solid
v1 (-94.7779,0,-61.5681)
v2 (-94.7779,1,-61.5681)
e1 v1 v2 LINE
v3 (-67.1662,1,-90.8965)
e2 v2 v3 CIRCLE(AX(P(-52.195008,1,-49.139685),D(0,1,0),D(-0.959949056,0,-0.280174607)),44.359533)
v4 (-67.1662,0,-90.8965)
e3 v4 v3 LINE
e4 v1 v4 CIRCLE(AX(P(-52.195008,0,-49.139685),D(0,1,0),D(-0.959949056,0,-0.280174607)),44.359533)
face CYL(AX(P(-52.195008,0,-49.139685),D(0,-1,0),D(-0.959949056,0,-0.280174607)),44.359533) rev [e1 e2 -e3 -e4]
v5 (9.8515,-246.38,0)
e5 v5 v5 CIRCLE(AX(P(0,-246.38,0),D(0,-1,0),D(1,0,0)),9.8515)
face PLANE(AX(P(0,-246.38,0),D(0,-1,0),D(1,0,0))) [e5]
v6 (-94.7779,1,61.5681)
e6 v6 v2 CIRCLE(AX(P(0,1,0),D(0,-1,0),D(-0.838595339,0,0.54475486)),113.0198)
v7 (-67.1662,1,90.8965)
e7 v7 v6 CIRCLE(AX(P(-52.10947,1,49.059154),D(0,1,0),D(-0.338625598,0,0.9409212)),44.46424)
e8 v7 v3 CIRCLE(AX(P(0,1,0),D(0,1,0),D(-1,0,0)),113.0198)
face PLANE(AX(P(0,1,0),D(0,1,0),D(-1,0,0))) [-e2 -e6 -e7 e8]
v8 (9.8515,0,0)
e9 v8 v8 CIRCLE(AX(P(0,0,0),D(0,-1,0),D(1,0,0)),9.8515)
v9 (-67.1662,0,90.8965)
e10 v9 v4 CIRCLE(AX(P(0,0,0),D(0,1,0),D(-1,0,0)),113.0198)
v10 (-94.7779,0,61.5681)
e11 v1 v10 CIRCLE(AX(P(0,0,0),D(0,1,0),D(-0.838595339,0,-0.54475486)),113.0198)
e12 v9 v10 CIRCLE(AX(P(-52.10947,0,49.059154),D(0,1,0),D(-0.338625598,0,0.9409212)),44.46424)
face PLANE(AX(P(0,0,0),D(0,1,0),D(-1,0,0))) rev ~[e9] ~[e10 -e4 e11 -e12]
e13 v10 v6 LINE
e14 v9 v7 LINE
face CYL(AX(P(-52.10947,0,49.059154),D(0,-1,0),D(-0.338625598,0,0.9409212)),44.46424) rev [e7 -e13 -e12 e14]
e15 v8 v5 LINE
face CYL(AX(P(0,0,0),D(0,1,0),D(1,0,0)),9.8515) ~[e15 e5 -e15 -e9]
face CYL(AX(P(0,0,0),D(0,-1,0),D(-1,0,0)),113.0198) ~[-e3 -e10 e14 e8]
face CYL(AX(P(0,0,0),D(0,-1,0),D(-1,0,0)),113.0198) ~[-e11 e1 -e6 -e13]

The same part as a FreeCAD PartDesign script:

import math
import FreeCAD as App
import Part
import Sketcher
from FreeCAD import Vector

doc = App.newDocument("Part")
body = doc.addObject("PartDesign::Body", "Body")

# Sketch on XZ plane
sketch1 = body.newObject("Sketcher::SketchObject", "Sketch")
sketch1.AttachmentSupport = (doc.getObject("XZ_Plane"), [""])
sketch1.MapMode = "FlatFace"
sketch1.addGeometry([
    Part.ArcOfCircle(Part.Circle(Vector(0, 0, 0), Vector(0, 0, 1), 113.0198), math.radians(146.992087), math.radians(213.007913)),
    Part.ArcOfCircle(Part.Circle(Vector(-52.1094, 49.0592, 0), Vector(0, 0, 1), 44.46422), math.radians(163.660723), math.radians(469.793265)),
    Part.ArcOfCircle(Part.Circle(Vector(0, 0, 0), Vector(0, 0, 1), 113.0198), math.radians(-126.461827), math.radians(126.461827)),
    Part.ArcOfCircle(Part.Circle(Vector(-52.195, -49.1397, 0), Vector(0, 0, 1), 44.359537), math.radians(-109.724443), math.radians(196.270605)),
], False)
sketch1.addConstraint([
    Sketcher.Constraint("Coincident", 0, 1, 1, 1),
    Sketcher.Constraint("Coincident", 1, 2, 2, 2),
    Sketcher.Constraint("Coincident", 2, 1, 3, 1),
    Sketcher.Constraint("Coincident", 3, 2, 0, 2),
    Sketcher.Constraint("Coincident", 0, 3, -1, 1),
    Sketcher.Constraint("Coincident", 2, 3, -1, 1),
    Sketcher.Constraint("Equal", 0, 2),
    Sketcher.Constraint("Vertical", 1, 2, 2, 1),
    Sketcher.Constraint("Vertical", 0, 1, 3, 2),
    Sketcher.Constraint("Radius", 0, 113.0198),
    Sketcher.Constraint("Radius", 1, 44.4642),
    Sketcher.Constraint("Radius", 3, 44.3595),
    Sketcher.Constraint("DistanceX", 3, 3, -1, 1, 52.195),
    Sketcher.Constraint("DistanceY", -1, 1, 0, 1, 61.568),
])
pad1 = body.newObject("PartDesign::Pad", "Pad")
pad1.Profile = sketch1
pad1.Length = 1
pad1.Reversed = True

# Sketch on XZ plane
sketch2 = body.newObject("Sketcher::SketchObject", "Sketch001")
sketch2.AttachmentSupport = (doc.getObject("XZ_Plane"), [""])
sketch2.MapMode = "FlatFace"
sketch2.addGeometry(Part.Circle(Vector(0, 0, 0), Vector(0, 0, 1), 9.8515), False)
sketch2.addConstraint([
    Sketcher.Constraint("Coincident", 0, 3, -1, 1),
    Sketcher.Constraint("Diameter", 0, 19.703),
])
pad2 = body.newObject("PartDesign::Pad", "Pad001")
pad2.Profile = sketch2
pad2.Length = 246.38

doc.recompute()
